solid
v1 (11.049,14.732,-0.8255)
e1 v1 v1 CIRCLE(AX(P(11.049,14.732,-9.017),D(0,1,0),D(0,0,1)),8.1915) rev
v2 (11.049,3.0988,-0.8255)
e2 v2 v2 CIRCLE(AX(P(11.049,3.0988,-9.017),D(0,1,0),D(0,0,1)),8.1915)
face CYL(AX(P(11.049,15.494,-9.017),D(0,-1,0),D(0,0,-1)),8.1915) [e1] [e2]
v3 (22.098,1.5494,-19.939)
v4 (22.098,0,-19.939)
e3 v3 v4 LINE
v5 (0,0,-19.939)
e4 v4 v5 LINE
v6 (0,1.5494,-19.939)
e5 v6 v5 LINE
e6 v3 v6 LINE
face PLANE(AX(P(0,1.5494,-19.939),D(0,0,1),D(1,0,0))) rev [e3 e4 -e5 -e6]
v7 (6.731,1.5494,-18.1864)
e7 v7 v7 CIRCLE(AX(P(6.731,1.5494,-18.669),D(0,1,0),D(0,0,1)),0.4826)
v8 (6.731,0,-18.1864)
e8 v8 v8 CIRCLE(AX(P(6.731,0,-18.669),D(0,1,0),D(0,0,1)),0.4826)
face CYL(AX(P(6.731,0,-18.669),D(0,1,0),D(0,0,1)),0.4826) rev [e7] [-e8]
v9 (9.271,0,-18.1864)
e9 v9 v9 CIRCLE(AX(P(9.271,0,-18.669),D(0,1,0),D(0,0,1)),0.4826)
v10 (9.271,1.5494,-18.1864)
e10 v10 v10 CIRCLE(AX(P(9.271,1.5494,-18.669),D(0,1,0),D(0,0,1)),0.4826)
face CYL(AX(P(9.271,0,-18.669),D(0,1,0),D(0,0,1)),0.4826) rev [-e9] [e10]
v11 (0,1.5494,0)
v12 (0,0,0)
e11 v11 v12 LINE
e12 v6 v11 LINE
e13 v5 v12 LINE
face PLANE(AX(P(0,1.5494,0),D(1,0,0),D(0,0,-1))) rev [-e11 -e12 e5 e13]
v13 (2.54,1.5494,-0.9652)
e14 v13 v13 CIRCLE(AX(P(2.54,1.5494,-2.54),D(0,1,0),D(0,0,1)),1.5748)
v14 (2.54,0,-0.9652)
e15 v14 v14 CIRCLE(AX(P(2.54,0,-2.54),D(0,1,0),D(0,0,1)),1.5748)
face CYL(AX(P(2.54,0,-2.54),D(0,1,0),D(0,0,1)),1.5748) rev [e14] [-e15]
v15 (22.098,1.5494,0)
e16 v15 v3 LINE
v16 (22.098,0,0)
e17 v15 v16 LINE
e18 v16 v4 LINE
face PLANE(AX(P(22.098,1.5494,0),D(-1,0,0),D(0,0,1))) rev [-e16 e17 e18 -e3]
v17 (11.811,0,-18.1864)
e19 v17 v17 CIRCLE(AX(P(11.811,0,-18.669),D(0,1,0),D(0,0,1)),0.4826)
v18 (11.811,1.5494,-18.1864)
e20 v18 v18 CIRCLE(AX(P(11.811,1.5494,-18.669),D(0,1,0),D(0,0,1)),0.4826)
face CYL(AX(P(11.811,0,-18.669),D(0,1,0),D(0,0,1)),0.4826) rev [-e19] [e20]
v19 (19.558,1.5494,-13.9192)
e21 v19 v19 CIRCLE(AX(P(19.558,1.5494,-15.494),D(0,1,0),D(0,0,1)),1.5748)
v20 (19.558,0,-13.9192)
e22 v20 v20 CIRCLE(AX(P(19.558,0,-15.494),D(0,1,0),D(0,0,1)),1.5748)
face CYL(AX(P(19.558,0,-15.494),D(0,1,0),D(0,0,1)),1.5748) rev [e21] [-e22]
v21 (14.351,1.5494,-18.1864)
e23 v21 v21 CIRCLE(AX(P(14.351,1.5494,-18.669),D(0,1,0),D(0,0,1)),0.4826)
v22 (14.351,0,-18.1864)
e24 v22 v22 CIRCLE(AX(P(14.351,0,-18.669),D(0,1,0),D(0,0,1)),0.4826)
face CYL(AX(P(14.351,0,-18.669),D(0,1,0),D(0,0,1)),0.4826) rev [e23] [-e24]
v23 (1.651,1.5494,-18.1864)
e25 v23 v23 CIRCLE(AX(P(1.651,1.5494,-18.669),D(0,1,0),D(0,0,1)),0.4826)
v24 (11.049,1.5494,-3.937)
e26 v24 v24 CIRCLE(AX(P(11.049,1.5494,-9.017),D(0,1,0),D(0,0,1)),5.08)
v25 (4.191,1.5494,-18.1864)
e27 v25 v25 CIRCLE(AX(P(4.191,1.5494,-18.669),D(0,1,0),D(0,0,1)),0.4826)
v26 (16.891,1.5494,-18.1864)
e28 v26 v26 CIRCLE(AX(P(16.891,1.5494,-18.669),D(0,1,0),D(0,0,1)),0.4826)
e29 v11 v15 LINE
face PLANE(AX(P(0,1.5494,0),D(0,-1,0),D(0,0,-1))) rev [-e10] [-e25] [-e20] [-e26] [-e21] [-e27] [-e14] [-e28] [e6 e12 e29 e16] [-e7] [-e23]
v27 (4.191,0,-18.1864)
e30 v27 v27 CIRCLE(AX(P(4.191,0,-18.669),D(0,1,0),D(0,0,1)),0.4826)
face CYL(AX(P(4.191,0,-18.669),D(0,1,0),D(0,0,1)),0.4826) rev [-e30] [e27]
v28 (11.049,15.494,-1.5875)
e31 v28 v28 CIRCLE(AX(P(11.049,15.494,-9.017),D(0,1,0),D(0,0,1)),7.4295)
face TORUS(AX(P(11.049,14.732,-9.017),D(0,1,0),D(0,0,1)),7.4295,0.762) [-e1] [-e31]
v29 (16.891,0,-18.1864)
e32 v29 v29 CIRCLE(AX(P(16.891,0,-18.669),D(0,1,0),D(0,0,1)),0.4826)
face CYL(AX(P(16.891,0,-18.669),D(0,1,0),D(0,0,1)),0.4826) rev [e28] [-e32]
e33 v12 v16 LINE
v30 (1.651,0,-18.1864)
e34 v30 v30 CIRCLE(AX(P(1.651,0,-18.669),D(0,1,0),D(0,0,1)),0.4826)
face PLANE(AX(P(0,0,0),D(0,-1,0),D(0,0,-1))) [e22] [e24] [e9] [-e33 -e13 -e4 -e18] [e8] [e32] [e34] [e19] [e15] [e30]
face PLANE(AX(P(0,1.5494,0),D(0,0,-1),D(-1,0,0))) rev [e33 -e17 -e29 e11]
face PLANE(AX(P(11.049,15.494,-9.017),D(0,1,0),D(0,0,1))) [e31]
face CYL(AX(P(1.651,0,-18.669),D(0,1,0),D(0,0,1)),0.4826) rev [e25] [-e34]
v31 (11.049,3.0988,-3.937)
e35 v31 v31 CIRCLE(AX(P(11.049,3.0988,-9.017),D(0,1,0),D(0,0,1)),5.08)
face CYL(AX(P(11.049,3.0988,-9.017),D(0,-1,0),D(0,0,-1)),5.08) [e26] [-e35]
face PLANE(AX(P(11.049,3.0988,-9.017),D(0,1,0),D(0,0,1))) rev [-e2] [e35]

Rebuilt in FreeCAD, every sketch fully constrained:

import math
import FreeCAD as App
import Part
import Sketcher

V = App.Vector
Q = App.Units.Quantity


def edges_at(feature, points):
    """Names of the edges that pass closest to the given points."""
    edges = feature.Shape.Edges
    near = lambda p: min(range(len(edges)), key=lambda i: edges[i].distToShape(Part.Vertex(*p))[0])
    return sorted({f"Edge{near(p) + 1}" for p in points})


def add_polygon(sketch, points):
    """Adds a closed chain of lines whose ends are joined by coincident constraints."""
    first, n = sketch.GeometryCount, len(points)
    for a, b in zip(points, points[1:] + points[:1]):
        sketch.addGeometry(Part.LineSegment(App.Vector(*a, 0), App.Vector(*b, 0)), False)
    for i in range(n):
        sketch.addConstraint(Sketcher.Constraint("Coincident", first + i, 2, first + (i + 1) % n, 1))

doc = App.newDocument("Part")
body = doc.addObject("PartDesign::Body", "Body")

# Sketch on XZ plane
sketch1 = doc.addObject("Sketcher::SketchObject", "Sketch")
body.addObject(sketch1)
sketch1.AttachmentSupport = (doc.XZ_Plane, [""])
sketch1.MapMode = "FlatFace"
add_polygon(sketch1, [(0, -19.939), (0, 0), (22.098, 0), (22.098, -19.939)])  # lines 0-3
sketch1.addConstraint([
    Sketcher.Constraint("Vertical", 0),
    Sketcher.Constraint("Horizontal", 1),
    Sketcher.Constraint("Vertical", 2),
    Sketcher.Constraint("Horizontal", 3),
    Sketcher.Constraint("Coincident", 0, 2, -1, 1),
    Sketcher.Constraint("DistanceX", 1, 1, 1, 2, Q("0.87 in")),
    Sketcher.Constraint("DistanceY", 0, 1, 0, 2, Q("0.785 in")),
])
pad1 = doc.addObject("PartDesign::Pad", "Pad")
body.addObject(pad1)
pad1.Profile = sketch1
pad1.Length = Q("0.061 in")
pad1.Reversed = True

# Sketch on XZ plane
sketch2 = doc.addObject("Sketcher::SketchObject", "Sketch001")
body.addObject(sketch2)
sketch2.AttachmentSupport = (doc.XZ_Plane, [""])
sketch2.MapMode = "FlatFace"
sketch2.AttachmentOffset = App.Placement(V(0, 0, -0.061 * 25.4), App.Rotation())
sketch2.addGeometry([
    Part.ArcOfCircle(Part.Circle(V(11.049, -9.017, 0), V(0, 0, 1), 5.08), math.radians(-90), math.radians(0)),
    Part.ArcOfCircle(Part.Circle(V(11.049, -9.017, 0), V(0, 0, 1), 5.08), math.radians(90), math.radians(270)),
    Part.ArcOfCircle(Part.Circle(V(11.049, -9.017, 0), V(0, 0, 1), 5.08), math.radians(0), math.radians(90)),
], False)
sketch2.addConstraint([
    Sketcher.Constraint("Tangent", 0, 1, 1, 2),
    Sketcher.Constraint("Tangent", 1, 1, 2, 2),
    Sketcher.Constraint("Tangent", 2, 1, 0, 2),
    Sketcher.Constraint("Horizontal", 1, 3, 2, 1),
    Sketcher.Constraint("Vertical", 2, 3, 0, 1),
    Sketcher.Constraint("Vertical", 0, 1, 1, 1),
    Sketcher.Constraint("Radius", 0, Q("0.2 in")),
    Sketcher.Constraint("DistanceX", -1, 1, 0, 3, Q("0.435 in")),
    Sketcher.Constraint("DistanceY", 0, 3, -1, 1, Q("0.355 in")),
])
pad2 = doc.addObject("PartDesign::Pad", "Pad001")
body.addObject(pad2)
pad2.Profile = sketch2
pad2.Length = Q("0.061 in")
pad2.Reversed = True

# Sketch on XZ plane
sketch3 = doc.addObject("Sketcher::SketchObject", "Sketch002")
body.addObject(sketch3)
sketch3.AttachmentSupport = (doc.XZ_Plane, [""])
sketch3.MapMode = "FlatFace"
sketch3.AttachmentOffset = App.Placement(V(0, 0, -0.122 * 25.4), App.Rotation())
sketch3.addGeometry(Part.Circle(V(11.049, -9.017, 0), V(0, 0, 1), 8.1915), False)
sketch3.addConstraint([
    Sketcher.Constraint("Diameter", 0, Q("0.645 in")),
    Sketcher.Constraint("DistanceX", -1, 1, 0, 3, Q("0.435 in")),
    Sketcher.Constraint("DistanceY", 0, 3, -1, 1, Q("0.355 in")),
])
pad3 = doc.addObject("PartDesign::Pad", "Pad002")
body.addObject(pad3)
pad3.Profile = sketch3
pad3.Length = Q("0.488 in")
pad3.Reversed = True

# Sketch on XZ plane
sketch4 = doc.addObject("Sketcher::SketchObject", "Sketch003")
body.addObject(sketch4)
sketch4.AttachmentSupport = (doc.XZ_Plane, [""])
sketch4.MapMode = "FlatFace"
sketch4.AttachmentOffset = App.Placement(V(0, 0, -0.061 * 25.4), App.Rotation())
sketch4.addGeometry([
    Part.Circle(V(19.558, -15.494, 0), V(0, 0, 1), 1.5748),  # 0
    Part.Circle(V(2.54, -2.54, 0), V(0, 0, 1), 1.5748),  # 1
    Part.Circle(V(16.891, -18.669, 0), V(0, 0, 1), 0.4826),  # 2
    Part.Circle(V(14.351, -18.669, 0), V(0, 0, 1), 0.4826),  # 3
    Part.Circle(V(11.811, -18.669, 0), V(0, 0, 1), 0.4826),  # 4
    Part.Circle(V(9.271, -18.669, 0), V(0, 0, 1), 0.4826),  # 5
    Part.Circle(V(6.731, -18.669, 0), V(0, 0, 1), 0.4826),  # 6
    Part.Circle(V(4.191, -18.669, 0), V(0, 0, 1), 0.4826),  # 7
    Part.Circle(V(1.651, -18.669, 0), V(0, 0, 1), 0.4826),  # 8
], False)
sketch4.addConstraint([
    Sketcher.Constraint("Equal", 0, 1),
    Sketcher.Constraint("Equal", 2, 3),
    Sketcher.Constraint("Equal", 3, 4),
    Sketcher.Constraint("Equal", 4, 5),
    Sketcher.Constraint("Equal", 5, 6),
    Sketcher.Constraint("Equal", 6, 7),
    Sketcher.Constraint("Equal", 7, 8),
    Sketcher.Constraint("Horizontal", 2, 3, 3, 3),
    Sketcher.Constraint("Horizontal", 3, 3, 4, 3),
    Sketcher.Constraint("Horizontal", 4, 3, 5, 3),
    Sketcher.Constraint("Horizontal", 5, 3, 6, 3),
    Sketcher.Constraint("Horizontal", 6, 3, 7, 3),
    Sketcher.Constraint("Horizontal", 7, 3, 8, 3),
    Sketcher.Constraint("Diameter", 0, Q("0.124 in")),
    Sketcher.Constraint("Diameter", 2, Q("0.038 in")),
    Sketcher.Constraint("DistanceX", -1, 1, 1, 3, Q("0.1 in")),
    Sketcher.Constraint("DistanceY", 1, 3, -1, 1, Q("0.1 in")),
    Sketcher.Constraint("DistanceX", 3, 3, 2, 3, Q("0.1 in")),
    Sketcher.Constraint("DistanceX", 4, 3, 3, 3, Q("0.1 in")),
    Sketcher.Constraint("DistanceX", 5, 3, 4, 3, Q("0.1 in")),
    Sketcher.Constraint("DistanceX", 6, 3, 5, 3, Q("0.1 in")),
    Sketcher.Constraint("DistanceX", 7, 3, 6, 3, Q("0.1 in")),
    Sketcher.Constraint("DistanceX", 8, 3, 7, 3, Q("0.1 in")),
    Sketcher.Constraint("DistanceX", -1, 1, 0, 3, Q("0.77 in")),
    Sketcher.Constraint("DistanceY", 0, 3, -1, 1, Q("0.61 in")),
    Sketcher.Constraint("DistanceX", -1, 1, 2, 3, Q("0.665 in")),
    Sketcher.Constraint("DistanceY", 2, 3, -1, 1, Q("0.735 in")),
])
pocket1 = doc.addObject("PartDesign::Pocket", "Pocket")
body.addObject(pocket1)
pocket1.Profile = sketch4
pocket1.Type = "ThroughAll"
pocket1.Reversed = True
doc.recompute()

fillet = doc.addObject("PartDesign::Fillet", "Fillet")
body.addObject(fillet)
fillet.Base = (pocket1, edges_at(pocket1, [(2.857, 15.494, -9.017)]))
fillet.Radius = Q("0.03 in")

doc.recompute()
